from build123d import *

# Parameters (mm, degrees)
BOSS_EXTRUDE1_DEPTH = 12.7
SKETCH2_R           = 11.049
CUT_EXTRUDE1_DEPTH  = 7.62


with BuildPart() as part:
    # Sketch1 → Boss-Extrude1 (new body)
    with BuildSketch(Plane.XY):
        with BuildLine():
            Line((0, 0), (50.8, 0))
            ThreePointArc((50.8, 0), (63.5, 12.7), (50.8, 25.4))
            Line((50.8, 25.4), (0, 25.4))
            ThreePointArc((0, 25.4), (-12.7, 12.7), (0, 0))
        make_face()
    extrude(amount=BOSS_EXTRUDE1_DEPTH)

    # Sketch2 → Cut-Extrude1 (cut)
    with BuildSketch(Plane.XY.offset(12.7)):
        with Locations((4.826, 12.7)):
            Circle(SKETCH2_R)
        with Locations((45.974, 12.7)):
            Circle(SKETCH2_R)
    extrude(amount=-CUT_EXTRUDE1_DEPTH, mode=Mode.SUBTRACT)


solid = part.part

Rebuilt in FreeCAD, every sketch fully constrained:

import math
import FreeCAD as App
import Part
import Sketcher

V = App.Vector
Q = App.Units.Quantity

doc = App.newDocument("Part")
body = doc.addObject("PartDesign::Body", "Body")

# Sketch on XY plane
sketch1 = doc.addObject("Sketcher::SketchObject", "Sketch")
body.addObject(sketch1)
sketch1.AttachmentSupport = (doc.XY_Plane, [""])
sketch1.MapMode = "FlatFace"
sketch1.addGeometry([
    Part.LineSegment(V(0, 0, 0), V(50.8, 0, 0)),
    Part.ArcOfCircle(Part.Circle(V(50.8, 12.7, 0), V(0, 0, 1), 12.7), math.radians(-90), math.radians(90)),
    Part.LineSegment(V(50.8, 25.4, 0), V(0, 25.4, 0)),
    Part.ArcOfCircle(Part.Circle(V(0, 12.7, 0), V(0, 0, 1), 12.7), math.radians(90), math.radians(270)),
], False)
sketch1.addConstraint([
    Sketcher.Constraint("Tangent", 0, 2, 1, 1),
    Sketcher.Constraint("Tangent", 1, 2, 2, 1),
    Sketcher.Constraint("Tangent", 2, 2, 3, 1),
    Sketcher.Constraint("Tangent", 3, 2, 0, 1),
    Sketcher.Constraint("Horizontal", 0),
    Sketcher.Constraint("Horizontal", 2),
    Sketcher.Constraint("Coincident", 3, 2, -1, 1),
    Sketcher.Constraint("Radius", 1, Q("0.5 in")),
    Sketcher.Constraint("DistanceX", 0, 1, 0, 2, Q("2 in")),
])
pad1 = doc.addObject("PartDesign::Pad", "Pad")
body.addObject(pad1)
pad1.Profile = sketch1
pad1.Length = Q("0.5 in")

# Sketch on XY plane
sketch2 = doc.addObject("Sketcher::SketchObject", "Sketch001")
body.addObject(sketch2)
sketch2.AttachmentSupport = (doc.XY_Plane, [""])
sketch2.MapMode = "FlatFace"
sketch2.AttachmentOffset = App.Placement(V(0, 0, 0.5 * 25.4), App.Rotation())
sketch2.addGeometry([
    Part.Circle(V(4.826, 12.7, 0), V(0, 0, 1), 11.049),
    Part.Circle(V(45.974, 12.7, 0), V(0, 0, 1), 11.049),
], False)
sketch2.addConstraint([
    Sketcher.Constraint("Equal", 0, 1),
    Sketcher.Constraint("Horizontal", 0, 3, 1, 3),
    Sketcher.Constraint("Diameter", 0, Q("0.87 in")),
    Sketcher.Constraint("DistanceY", -1, 1, 0, 3, Q("0.5 in")),
    Sketcher.Constraint("DistanceX", -1, 1, 0, 3, Q("0.19 in")),
    Sketcher.Constraint("DistanceX", -1, 1, 1, 3, Q("1.81 in")),
])
pocket1 = doc.addObject("PartDesign::Pocket", "Pocket")
body.addObject(pocket1)
pocket1.Profile = sketch2
pocket1.Length = Q("0.3 in")

doc.recompute()
